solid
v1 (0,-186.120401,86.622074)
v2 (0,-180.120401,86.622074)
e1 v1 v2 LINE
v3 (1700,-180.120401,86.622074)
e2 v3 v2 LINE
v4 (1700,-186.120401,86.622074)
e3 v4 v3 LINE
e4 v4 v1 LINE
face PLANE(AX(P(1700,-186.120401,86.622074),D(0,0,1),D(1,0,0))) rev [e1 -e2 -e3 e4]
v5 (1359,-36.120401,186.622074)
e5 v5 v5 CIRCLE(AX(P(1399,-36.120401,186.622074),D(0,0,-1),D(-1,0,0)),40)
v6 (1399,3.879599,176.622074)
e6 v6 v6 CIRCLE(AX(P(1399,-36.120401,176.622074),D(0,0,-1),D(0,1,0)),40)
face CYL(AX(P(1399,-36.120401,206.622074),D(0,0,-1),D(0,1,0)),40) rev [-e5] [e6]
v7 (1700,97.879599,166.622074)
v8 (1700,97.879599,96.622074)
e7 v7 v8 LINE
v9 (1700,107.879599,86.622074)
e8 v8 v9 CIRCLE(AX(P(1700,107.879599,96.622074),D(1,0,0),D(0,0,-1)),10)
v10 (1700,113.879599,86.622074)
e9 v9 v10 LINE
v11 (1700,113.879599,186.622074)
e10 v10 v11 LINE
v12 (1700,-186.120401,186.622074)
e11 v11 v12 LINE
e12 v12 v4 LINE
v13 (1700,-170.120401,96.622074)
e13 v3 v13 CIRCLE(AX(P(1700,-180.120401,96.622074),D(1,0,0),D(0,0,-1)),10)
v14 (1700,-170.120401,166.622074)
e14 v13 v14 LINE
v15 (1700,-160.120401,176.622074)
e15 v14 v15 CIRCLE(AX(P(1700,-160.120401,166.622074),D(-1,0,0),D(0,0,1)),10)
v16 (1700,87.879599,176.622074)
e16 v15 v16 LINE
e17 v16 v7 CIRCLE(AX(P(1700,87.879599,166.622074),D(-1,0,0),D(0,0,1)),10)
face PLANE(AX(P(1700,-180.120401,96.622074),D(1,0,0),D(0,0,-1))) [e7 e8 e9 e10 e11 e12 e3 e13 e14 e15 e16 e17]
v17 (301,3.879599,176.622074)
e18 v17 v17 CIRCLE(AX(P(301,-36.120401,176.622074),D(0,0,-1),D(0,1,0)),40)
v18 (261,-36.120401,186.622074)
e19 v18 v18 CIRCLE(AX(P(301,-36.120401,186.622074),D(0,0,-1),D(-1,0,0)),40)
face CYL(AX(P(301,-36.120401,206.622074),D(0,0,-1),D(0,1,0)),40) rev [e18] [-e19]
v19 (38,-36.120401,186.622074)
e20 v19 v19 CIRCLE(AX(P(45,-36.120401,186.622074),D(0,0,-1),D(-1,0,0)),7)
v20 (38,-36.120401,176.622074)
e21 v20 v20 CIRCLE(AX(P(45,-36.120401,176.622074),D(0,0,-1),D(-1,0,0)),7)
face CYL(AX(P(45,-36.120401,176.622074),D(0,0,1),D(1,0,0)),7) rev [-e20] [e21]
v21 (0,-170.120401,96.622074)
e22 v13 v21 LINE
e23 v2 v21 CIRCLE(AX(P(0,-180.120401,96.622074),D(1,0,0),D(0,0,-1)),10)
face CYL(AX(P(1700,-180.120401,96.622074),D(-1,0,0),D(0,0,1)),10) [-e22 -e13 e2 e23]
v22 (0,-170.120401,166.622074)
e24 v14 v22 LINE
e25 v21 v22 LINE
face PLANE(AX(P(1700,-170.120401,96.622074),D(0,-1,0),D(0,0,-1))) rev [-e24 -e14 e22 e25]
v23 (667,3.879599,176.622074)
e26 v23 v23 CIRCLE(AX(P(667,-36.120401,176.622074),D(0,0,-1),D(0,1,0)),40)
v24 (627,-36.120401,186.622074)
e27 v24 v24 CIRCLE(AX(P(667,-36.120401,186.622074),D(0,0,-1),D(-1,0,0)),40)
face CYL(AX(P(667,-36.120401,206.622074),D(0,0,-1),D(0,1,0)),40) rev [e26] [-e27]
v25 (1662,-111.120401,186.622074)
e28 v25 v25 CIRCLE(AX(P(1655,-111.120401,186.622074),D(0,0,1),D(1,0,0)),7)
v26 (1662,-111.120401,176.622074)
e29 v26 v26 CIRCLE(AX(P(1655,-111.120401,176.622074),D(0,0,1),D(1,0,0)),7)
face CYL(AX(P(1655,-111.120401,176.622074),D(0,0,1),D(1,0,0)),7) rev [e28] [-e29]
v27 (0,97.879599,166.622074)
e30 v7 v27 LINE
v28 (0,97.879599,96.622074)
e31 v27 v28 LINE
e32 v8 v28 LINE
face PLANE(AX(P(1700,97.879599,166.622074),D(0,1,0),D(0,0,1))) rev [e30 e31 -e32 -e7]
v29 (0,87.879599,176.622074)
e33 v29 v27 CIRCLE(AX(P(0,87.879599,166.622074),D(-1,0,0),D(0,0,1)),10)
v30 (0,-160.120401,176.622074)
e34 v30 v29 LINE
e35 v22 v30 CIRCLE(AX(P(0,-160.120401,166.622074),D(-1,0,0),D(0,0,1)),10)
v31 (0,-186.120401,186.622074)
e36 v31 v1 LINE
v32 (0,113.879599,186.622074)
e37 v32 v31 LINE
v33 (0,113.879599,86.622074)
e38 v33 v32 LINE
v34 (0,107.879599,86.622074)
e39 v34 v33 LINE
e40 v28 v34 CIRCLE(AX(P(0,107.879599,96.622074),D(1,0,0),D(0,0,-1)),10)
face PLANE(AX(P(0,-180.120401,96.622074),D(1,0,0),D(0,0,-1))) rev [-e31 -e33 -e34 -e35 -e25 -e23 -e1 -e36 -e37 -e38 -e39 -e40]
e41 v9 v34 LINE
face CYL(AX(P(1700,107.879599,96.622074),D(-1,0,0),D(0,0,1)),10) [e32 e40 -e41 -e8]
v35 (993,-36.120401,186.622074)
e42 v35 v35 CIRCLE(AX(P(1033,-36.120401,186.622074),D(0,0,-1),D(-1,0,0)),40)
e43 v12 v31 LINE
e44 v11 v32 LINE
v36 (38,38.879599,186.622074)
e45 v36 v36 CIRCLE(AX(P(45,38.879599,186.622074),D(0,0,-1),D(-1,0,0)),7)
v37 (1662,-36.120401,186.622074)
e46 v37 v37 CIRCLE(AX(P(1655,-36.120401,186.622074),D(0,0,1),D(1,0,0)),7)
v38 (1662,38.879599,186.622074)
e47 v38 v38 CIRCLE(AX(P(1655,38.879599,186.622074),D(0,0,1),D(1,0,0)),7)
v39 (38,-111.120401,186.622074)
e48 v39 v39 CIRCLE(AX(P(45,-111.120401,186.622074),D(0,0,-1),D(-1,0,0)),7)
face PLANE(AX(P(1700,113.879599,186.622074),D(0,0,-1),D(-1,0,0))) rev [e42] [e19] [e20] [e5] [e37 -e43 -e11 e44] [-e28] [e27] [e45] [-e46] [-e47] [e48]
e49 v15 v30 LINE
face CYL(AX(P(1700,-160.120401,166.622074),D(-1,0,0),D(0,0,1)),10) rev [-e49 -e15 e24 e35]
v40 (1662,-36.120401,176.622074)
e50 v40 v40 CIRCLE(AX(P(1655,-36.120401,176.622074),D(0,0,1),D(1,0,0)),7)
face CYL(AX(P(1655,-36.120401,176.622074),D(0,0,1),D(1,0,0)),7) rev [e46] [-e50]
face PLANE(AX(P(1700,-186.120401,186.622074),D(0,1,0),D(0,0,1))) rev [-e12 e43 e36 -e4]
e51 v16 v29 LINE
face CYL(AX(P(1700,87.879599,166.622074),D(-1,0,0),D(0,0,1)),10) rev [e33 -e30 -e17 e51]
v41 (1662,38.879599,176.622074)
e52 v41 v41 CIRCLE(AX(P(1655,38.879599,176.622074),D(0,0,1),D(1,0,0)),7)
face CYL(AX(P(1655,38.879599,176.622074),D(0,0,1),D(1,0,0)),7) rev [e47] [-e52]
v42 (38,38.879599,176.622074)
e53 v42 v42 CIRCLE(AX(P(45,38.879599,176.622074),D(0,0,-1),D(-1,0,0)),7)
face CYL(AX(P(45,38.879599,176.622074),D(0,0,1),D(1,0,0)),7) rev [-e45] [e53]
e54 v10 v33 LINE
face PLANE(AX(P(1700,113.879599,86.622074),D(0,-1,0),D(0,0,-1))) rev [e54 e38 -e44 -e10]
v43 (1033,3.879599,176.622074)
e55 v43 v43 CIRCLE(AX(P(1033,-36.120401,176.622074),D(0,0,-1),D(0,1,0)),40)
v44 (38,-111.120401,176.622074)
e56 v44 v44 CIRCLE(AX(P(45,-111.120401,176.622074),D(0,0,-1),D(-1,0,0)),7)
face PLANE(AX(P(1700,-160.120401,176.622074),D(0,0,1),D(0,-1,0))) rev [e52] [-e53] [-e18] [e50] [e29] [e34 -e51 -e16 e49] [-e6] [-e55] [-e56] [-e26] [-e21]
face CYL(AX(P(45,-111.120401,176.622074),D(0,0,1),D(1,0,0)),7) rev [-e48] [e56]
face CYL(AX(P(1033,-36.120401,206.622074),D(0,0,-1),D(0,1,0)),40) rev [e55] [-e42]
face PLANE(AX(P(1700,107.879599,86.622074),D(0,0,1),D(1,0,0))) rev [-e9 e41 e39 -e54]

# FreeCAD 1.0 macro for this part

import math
import FreeCAD as App
import Part
import Sketcher

doc = App.newDocument("Part")
body = doc.addObject("PartDesign::Body", "Body")

sketch1 = body.newObject("Sketcher::SketchObject", "Sketch")
sketch1.AttachmentSupport = (doc.getObject("YZ_Plane"), [""])
sketch1.MapMode = "FlatFace"
sketch1.addGeometry([
    Part.LineSegment(App.Vector(114, 87, 0), App.Vector(114, 187, 0)),
    Part.LineSegment(App.Vector(114, 187, 0), App.Vector(-186, 187, 0)),
    Part.LineSegment(App.Vector(-186, 187, 0), App.Vector(-186, 87, 0)),
    Part.LineSegment(App.Vector(-186, 87, 0), App.Vector(-180, 87, 0)),
    Part.ArcOfCircle(Part.Circle(App.Vector(-180, 97, 0), App.Vector(0, 0, 1), 10), math.radians(-90), math.radians(0)),
    Part.LineSegment(App.Vector(-170, 97, 0), App.Vector(-170, 167, 0)),
    Part.ArcOfCircle(Part.Circle(App.Vector(-160, 167, 0), App.Vector(0, 0, 1), 10), math.radians(90), math.radians(180)),
    Part.LineSegment(App.Vector(-160, 177, 0), App.Vector(88, 177, 0)),
    Part.ArcOfCircle(Part.Circle(App.Vector(88, 167, 0), App.Vector(0, 0, 1), 10), math.radians(0), math.radians(90)),
    Part.LineSegment(App.Vector(98, 167, 0), App.Vector(98, 97, 0)),
    Part.ArcOfCircle(Part.Circle(App.Vector(108, 97, 0), App.Vector(0, 0, 1), 10), math.radians(180), math.radians(270)),
    Part.LineSegment(App.Vector(108, 87, 0), App.Vector(114, 87, 0)),
], False)
sketch1.addConstraint([
    Sketcher.Constraint("Coincident", 0, 2, 1, 1),
    Sketcher.Constraint("Coincident", 1, 2, 2, 1),
    Sketcher.Constraint("Coincident", 2, 2, 3, 1),
    Sketcher.Constraint("Tangent", 3, 2, 4, 1),
    Sketcher.Constraint("Tangent", 4, 2, 5, 1),
    Sketcher.Constraint("Tangent", 5, 2, 6, 2),
    Sketcher.Constraint("Tangent", 6, 1, 7, 1),
    Sketcher.Constraint("Tangent", 7, 2, 8, 2),
    Sketcher.Constraint("Tangent", 8, 1, 9, 1),
    Sketcher.Constraint("Tangent", 9, 2, 10, 1),
    Sketcher.Constraint("Tangent", 10, 2, 11, 1),
    Sketcher.Constraint("Coincident", 11, 2, 0, 1),
    Sketcher.Constraint("Vertical", 0),
    Sketcher.Constraint("Horizontal", 1),
    Sketcher.Constraint("Vertical", 2),
    Sketcher.Constraint("Horizontal", 3),
    Sketcher.Constraint("Vertical", 5),
    Sketcher.Constraint("Horizontal", 7),
    Sketcher.Constraint("Vertical", 9),
    Sketcher.Constraint("Horizontal", 11),
    Sketcher.Constraint("Equal", 4, 6),
    Sketcher.Constraint("Equal", 6, 8),
    Sketcher.Constraint("Equal", 8, 10),
    Sketcher.Constraint("Horizontal", 4, 3, 10, 3),
    Sketcher.Constraint("Equal", 3, 11),
    Sketcher.Constraint("Radius", 4, 10.0),
    Sketcher.Constraint("DistanceX", 1, 2, 1, 1, 300.0),
    Sketcher.Constraint("DistanceX", 3, 1, 3, 2, 6.0),
    Sketcher.Constraint("DistanceY", 0, 1, 0, 2, 100.0),
    Sketcher.Constraint("DistanceY", 5, 1, 5, 2, 70.0),
    Sketcher.Constraint("DistanceX", 4, 3, -1, 1, 180.120401),
    Sketcher.Constraint("DistanceY", -1, 1, 4, 3, 96.622074),
])
pad1 = body.newObject("PartDesign::Pad", "Pad")
pad1.Profile = sketch1
pad1.Length = 1700

sketch2 = body.newObject("Sketcher::SketchObject", "Sketch001")
sketch2.AttachmentSupport = (doc.getObject("XY_Plane"), [""])
sketch2.MapMode = "FlatFace"
sketch2.AttachmentOffset = App.Placement(App.Vector(0, 0, 186.622074), App.Rotation())
sketch2.addGeometry([
    Part.Circle(App.Vector(1655, 39, 0), App.Vector(0, 0, 1), 7),
    Part.Circle(App.Vector(1655, -36, 0), App.Vector(0, 0, 1), 7),
    Part.Circle(App.Vector(1655, -111, 0), App.Vector(0, 0, 1), 7),
], False)
sketch2.addConstraint([
    Sketcher.Constraint("Equal", 0, 1),
    Sketcher.Constraint("Equal", 1, 2),
    Sketcher.Constraint("Vertical", 0, 3, 1, 3),
    Sketcher.Constraint("Vertical", 1, 3, 2, 3),
    Sketcher.Constraint("Diameter", 0, 14.0),
    Sketcher.Constraint("DistanceX", -1, 1, 0, 3, 1655.0),
    Sketcher.Constraint("DistanceY", 1, 3, 0, 3, 75.0),
    Sketcher.Constraint("DistanceY", 2, 3, 1, 3, 75.0),
    Sketcher.Constraint("DistanceY", -1, 1, 0, 3, 38.879599),
])
pocket1 = body.newObject("PartDesign::Pocket", "Pocket")
pocket1.Profile = sketch2
pocket1.Length = 10
doc.recompute()

datumplane = body.newObject("PartDesign::Plane", "DatumPlane")
datumplane.AttachmentSupport = (doc.getObject("YZ_Plane"), [""])
datumplane.MapMode = "FlatFace"
datumplane.AttachmentOffset = App.Placement(App.Vector(0, 0, 850), App.Rotation())
mirrored = body.newObject("PartDesign::Mirrored", "Mirrored")
mirrored.Originals = [pocket1]
mirrored.MirrorPlane = (datumplane, [""])
body.Tip = mirrored

sketch3 = body.newObject("Sketcher::SketchObject", "Sketch002")
sketch3.AttachmentSupport = (doc.getObject("XY_Plane"), [""])
sketch3.MapMode = "FlatFace"
sketch3.AttachmentOffset = App.Placement(App.Vector(0, 0, 176.622074), App.Rotation())
sketch3.addGeometry(Part.Circle(App.Vector(1399, -36, 0), App.Vector(0, 0, 1), 40), False)
sketch3.addConstraint([
    Sketcher.Constraint("Diameter", 0, 80.0),
    Sketcher.Constraint("DistanceX", -1, 1, 0, 3, 1399.0),
    Sketcher.Constraint("DistanceY", 0, 3, -1, 1, 36.120401),
])
pocket2 = body.newObject("PartDesign::Pocket", "Pocket001")
pocket2.Profile = sketch3
pocket2.Length = 30
pocket2.Reversed = True
doc.recompute()

linearpattern = body.newObject("PartDesign::LinearPattern", "LinearPattern")
linearpattern.Originals = [pocket2]
linearpattern.Direction = (doc.getObject("X_Axis"), [""])
linearpattern.Mode = "offset"
linearpattern.Offset = 366
linearpattern.Occurrences = 4
linearpattern.Reversed = True
body.Tip = linearpattern

doc.recompute()
